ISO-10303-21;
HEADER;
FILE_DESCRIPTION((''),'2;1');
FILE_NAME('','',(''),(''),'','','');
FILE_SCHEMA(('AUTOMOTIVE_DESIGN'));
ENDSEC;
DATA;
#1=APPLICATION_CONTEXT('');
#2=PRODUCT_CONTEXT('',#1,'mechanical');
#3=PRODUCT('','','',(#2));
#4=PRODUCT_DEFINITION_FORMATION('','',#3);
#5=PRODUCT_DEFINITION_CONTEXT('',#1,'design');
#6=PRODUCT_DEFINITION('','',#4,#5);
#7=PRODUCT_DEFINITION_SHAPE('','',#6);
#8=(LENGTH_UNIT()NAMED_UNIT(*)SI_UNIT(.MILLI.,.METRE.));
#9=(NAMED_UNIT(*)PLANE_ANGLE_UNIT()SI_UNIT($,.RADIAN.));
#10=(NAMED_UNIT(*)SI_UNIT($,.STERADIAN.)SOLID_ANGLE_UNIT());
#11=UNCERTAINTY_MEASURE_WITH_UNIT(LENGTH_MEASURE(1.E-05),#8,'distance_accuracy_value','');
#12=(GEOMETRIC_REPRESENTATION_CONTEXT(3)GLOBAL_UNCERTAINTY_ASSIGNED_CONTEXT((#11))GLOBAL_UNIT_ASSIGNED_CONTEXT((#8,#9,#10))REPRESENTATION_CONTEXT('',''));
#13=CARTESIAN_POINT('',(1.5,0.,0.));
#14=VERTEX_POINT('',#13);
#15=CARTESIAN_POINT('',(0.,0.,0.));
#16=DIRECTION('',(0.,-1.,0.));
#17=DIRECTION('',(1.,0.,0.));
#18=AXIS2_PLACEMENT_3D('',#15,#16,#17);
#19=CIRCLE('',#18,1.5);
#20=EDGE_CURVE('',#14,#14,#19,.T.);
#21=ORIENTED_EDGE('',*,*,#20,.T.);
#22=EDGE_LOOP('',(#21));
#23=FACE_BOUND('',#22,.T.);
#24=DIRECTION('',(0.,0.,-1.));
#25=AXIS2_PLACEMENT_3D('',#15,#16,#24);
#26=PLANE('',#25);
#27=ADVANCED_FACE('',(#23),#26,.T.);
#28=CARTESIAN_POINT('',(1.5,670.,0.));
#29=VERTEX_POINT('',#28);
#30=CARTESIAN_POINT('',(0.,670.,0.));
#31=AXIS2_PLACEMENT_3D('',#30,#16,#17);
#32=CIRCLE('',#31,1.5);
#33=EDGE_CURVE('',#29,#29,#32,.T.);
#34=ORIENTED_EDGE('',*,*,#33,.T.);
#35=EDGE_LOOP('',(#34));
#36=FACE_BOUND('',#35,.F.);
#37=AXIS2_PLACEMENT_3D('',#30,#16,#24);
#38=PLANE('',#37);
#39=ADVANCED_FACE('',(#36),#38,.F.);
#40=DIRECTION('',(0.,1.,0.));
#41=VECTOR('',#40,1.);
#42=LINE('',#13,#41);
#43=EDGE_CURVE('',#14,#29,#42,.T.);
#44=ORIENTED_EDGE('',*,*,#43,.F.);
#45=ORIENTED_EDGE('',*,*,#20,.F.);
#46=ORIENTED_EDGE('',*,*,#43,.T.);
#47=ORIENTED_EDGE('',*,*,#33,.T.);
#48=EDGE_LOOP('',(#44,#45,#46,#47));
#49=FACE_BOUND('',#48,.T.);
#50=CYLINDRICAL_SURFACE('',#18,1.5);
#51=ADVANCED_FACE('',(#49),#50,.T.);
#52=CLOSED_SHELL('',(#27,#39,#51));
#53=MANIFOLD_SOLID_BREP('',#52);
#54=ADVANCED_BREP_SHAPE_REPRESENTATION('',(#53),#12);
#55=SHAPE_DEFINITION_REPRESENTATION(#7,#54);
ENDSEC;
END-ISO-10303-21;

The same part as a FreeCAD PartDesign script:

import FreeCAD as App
import Part
import Sketcher

doc = App.newDocument("Part")
body = doc.addObject("PartDesign::Body", "Body")

# Sketch on XZ plane
sketch1 = body.newObject("Sketcher::SketchObject", "Sketch")
sketch1.AttachmentSupport = (doc.getObject("XZ_Plane"), [""])
sketch1.MapMode = "FlatFace"
sketch1.addGeometry(Part.Circle(App.Vector(0, 0, 0), App.Vector(0, 0, 1), 1.5), False)
sketch1.addConstraint([
    Sketcher.Constraint("Coincident", 0, 3, -1, 1),
    Sketcher.Constraint("Diameter", 0, 3.0),
])
pad1 = body.newObject("PartDesign::Pad", "Pad")
pad1.Profile = sketch1
pad1.Length = 670
pad1.Reversed = True

doc.recompute()
